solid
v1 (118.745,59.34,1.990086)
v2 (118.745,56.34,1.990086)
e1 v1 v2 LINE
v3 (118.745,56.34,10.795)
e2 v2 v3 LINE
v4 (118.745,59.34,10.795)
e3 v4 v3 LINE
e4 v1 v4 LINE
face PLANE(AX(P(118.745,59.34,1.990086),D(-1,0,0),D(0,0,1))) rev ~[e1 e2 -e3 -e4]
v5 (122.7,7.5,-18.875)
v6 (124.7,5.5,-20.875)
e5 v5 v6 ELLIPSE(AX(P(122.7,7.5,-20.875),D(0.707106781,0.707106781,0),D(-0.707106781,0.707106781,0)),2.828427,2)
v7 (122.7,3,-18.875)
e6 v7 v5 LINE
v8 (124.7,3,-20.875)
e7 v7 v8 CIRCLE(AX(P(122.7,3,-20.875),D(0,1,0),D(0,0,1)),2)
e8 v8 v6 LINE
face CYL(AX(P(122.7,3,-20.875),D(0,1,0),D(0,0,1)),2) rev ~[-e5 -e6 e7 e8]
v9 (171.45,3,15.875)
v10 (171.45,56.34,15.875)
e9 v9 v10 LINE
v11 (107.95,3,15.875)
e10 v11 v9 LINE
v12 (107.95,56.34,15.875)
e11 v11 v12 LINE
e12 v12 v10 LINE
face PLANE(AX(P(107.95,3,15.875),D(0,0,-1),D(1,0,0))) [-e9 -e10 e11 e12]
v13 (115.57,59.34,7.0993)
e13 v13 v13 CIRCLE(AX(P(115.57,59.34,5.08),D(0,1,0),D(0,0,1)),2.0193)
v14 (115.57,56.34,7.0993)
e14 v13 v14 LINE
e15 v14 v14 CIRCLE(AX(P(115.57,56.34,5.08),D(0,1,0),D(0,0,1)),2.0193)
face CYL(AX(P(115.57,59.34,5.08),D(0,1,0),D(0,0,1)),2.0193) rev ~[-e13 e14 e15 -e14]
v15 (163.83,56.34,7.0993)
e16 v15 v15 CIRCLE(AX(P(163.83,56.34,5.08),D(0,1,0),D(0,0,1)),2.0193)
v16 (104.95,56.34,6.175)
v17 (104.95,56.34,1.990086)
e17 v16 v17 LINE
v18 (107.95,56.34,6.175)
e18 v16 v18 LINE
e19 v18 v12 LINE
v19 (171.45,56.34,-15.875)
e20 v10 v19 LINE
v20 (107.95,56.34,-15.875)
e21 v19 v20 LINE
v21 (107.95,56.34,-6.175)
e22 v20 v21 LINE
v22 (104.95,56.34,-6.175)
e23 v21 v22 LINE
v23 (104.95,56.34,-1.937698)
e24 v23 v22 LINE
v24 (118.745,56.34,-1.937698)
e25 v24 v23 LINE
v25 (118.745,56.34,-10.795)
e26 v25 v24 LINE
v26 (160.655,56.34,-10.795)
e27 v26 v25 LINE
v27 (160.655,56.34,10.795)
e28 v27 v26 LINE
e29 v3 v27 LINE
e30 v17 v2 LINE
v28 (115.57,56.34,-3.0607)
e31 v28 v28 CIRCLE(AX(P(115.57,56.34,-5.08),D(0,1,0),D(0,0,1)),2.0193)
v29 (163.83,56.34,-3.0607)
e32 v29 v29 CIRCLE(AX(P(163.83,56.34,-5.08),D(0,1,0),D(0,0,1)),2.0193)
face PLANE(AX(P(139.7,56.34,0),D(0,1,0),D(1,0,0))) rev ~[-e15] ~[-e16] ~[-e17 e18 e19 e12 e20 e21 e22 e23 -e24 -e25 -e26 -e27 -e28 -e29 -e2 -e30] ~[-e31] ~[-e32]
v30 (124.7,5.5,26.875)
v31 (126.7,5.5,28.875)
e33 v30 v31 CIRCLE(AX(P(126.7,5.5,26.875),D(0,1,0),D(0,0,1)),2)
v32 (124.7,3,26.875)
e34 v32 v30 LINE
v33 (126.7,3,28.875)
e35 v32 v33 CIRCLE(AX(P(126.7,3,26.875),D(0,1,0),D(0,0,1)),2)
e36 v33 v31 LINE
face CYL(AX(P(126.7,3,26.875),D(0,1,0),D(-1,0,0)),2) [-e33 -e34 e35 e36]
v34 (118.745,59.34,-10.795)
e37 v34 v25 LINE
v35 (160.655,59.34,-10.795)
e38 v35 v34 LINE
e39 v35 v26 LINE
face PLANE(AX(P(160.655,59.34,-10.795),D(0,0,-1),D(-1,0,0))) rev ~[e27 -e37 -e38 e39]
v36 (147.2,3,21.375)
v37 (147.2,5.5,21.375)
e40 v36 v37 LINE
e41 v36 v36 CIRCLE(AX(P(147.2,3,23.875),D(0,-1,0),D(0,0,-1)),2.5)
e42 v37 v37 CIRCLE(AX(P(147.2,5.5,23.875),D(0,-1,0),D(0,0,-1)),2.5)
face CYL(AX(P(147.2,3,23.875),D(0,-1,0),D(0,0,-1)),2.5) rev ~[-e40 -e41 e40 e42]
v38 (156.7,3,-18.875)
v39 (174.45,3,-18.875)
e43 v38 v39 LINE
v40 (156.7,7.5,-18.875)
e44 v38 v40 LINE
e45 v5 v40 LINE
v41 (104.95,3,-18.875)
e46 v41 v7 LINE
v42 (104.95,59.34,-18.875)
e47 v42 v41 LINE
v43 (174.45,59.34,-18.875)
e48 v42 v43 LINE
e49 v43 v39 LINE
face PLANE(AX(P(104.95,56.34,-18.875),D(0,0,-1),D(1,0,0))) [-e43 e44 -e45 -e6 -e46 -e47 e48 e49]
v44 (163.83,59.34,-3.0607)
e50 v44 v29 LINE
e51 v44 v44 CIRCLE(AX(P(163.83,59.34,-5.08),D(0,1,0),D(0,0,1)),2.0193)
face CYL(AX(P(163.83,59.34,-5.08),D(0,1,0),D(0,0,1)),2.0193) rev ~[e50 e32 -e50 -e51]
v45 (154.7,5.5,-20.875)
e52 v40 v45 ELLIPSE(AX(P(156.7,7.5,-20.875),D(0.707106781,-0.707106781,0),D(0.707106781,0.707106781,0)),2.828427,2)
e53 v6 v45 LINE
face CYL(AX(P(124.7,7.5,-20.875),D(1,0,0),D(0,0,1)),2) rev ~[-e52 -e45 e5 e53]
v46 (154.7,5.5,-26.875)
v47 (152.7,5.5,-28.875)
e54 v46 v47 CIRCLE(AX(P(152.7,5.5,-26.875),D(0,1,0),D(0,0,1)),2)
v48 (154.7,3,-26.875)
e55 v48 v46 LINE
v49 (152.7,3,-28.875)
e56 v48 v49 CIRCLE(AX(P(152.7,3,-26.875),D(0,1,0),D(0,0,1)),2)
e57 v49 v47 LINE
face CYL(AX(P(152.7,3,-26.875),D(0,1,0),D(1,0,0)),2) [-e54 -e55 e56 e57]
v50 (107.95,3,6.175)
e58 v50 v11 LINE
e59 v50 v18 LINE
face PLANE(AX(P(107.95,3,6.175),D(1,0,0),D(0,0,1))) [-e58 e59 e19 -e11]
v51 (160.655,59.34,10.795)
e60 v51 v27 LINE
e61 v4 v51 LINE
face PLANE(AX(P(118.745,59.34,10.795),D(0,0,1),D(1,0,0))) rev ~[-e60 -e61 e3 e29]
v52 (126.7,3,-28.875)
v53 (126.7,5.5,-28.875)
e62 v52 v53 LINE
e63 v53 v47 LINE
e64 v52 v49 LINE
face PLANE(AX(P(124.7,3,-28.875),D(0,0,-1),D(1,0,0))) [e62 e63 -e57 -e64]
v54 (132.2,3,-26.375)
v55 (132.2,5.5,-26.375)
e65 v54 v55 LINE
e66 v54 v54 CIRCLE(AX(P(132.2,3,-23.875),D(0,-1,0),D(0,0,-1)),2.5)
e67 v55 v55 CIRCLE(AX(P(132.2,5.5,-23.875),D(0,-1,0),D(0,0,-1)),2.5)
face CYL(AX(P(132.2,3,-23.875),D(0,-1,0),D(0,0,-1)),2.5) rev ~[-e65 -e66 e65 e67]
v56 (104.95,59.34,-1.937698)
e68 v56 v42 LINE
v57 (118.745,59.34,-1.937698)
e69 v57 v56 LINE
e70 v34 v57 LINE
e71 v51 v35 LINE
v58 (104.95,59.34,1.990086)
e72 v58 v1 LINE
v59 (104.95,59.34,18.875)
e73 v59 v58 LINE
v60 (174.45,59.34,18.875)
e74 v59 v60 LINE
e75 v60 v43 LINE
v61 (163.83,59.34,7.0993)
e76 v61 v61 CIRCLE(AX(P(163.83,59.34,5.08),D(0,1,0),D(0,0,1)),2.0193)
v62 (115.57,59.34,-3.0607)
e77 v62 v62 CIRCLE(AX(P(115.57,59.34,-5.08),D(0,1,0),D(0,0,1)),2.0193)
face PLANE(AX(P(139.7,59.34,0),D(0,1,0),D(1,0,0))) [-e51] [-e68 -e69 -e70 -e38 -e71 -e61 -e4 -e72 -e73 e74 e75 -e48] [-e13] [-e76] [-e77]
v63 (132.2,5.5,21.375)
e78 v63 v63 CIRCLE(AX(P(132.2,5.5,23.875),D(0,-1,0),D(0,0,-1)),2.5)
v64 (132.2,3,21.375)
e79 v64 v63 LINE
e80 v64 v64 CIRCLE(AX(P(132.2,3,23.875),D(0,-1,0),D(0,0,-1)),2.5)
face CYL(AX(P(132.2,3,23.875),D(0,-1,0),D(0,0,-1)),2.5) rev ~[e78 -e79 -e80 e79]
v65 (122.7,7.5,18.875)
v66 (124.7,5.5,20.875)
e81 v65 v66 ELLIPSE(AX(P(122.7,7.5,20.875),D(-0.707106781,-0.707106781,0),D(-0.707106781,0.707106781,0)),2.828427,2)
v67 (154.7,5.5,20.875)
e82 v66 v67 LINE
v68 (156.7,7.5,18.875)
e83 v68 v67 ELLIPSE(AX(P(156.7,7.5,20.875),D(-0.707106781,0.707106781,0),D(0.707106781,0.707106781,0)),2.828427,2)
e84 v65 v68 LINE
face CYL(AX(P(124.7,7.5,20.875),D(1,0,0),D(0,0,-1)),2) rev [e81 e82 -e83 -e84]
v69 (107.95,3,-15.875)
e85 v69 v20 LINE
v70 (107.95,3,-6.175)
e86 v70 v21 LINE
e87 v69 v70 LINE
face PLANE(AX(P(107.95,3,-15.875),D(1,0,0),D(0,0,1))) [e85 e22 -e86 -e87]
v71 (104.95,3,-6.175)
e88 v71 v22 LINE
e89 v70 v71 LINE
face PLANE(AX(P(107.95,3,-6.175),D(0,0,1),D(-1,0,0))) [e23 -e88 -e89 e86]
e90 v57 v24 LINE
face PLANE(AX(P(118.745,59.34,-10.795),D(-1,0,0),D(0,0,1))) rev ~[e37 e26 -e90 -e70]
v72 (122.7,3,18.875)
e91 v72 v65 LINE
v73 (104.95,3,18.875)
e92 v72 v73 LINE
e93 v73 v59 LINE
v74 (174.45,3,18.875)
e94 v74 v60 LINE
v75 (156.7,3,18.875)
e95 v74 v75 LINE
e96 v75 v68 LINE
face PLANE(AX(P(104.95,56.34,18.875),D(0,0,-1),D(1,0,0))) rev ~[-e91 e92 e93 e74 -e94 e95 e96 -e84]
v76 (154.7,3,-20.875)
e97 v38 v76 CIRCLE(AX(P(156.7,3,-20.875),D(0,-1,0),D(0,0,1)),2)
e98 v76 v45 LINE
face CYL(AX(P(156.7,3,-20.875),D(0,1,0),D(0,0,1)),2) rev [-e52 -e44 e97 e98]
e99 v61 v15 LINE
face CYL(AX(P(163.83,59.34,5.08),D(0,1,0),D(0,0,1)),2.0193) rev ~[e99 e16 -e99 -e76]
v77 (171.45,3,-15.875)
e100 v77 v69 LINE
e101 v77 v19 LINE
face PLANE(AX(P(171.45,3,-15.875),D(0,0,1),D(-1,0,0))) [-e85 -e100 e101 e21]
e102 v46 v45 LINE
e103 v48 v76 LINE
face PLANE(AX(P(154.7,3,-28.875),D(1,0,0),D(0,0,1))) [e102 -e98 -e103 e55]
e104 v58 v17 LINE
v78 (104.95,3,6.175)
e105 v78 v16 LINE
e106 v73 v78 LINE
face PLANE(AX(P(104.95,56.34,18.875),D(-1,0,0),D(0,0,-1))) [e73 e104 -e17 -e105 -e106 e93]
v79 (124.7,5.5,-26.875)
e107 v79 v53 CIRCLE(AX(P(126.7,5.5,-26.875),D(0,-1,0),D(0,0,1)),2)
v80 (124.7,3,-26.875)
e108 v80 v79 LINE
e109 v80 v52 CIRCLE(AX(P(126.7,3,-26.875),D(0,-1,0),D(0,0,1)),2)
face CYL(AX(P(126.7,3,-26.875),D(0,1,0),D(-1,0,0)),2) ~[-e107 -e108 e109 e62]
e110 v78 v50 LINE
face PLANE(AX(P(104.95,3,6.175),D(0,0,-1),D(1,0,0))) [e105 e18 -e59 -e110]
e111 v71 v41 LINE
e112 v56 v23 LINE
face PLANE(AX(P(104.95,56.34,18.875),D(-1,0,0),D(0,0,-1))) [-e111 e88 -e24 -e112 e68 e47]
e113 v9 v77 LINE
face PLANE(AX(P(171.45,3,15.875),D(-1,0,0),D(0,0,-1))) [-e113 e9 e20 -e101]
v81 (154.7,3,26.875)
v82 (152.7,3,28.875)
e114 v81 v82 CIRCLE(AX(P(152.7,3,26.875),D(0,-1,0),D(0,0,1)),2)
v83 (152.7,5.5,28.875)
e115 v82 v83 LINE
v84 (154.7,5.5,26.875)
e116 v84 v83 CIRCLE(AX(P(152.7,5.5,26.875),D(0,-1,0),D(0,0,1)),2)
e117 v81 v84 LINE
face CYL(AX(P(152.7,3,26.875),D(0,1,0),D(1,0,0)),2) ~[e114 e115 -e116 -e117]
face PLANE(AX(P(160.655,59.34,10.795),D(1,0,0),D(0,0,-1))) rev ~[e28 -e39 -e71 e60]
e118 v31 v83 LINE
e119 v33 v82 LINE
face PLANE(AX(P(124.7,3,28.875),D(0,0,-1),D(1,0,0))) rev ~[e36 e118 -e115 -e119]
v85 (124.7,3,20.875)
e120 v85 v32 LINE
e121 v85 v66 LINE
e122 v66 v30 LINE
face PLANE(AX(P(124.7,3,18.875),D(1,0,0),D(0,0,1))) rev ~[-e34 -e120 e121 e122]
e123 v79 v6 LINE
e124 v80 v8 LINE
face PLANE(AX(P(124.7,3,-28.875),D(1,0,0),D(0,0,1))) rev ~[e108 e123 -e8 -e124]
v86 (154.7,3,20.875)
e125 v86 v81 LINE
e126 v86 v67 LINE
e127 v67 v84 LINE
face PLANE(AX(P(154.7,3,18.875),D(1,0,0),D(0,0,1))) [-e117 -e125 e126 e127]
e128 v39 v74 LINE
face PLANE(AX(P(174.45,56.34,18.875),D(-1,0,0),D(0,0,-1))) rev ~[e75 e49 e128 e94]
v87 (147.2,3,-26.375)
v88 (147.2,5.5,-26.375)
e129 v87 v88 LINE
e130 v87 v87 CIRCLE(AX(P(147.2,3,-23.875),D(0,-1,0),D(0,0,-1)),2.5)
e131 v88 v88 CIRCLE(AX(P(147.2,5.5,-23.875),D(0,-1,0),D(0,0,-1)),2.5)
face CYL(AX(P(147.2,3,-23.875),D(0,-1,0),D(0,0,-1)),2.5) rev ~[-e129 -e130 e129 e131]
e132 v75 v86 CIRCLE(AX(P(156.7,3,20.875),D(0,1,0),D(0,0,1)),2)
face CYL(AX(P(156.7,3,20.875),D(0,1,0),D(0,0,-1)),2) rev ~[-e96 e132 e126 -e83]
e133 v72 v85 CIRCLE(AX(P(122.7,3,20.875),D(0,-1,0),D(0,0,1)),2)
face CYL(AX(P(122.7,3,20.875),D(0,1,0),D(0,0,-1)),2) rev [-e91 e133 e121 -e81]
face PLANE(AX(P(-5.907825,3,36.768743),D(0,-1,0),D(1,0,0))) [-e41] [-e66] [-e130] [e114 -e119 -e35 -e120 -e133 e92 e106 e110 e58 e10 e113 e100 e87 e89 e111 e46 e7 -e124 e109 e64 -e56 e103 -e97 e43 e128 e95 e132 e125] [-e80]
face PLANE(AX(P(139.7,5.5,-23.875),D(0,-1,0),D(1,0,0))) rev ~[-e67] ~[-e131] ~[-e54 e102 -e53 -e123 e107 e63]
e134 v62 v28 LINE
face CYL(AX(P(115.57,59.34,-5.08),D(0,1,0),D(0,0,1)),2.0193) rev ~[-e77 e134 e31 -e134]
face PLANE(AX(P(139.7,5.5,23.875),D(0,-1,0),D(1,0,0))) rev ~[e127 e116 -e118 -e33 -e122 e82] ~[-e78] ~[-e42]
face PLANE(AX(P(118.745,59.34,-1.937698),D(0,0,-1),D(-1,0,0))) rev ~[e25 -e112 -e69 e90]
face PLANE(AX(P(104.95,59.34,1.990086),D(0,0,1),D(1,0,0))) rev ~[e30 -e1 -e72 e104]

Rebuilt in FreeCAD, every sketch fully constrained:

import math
import FreeCAD as App
import Part
import Sketcher
Q = App.Units.Quantity


def edges_at(feature, points):
    """Names of the edges that pass closest to the given points."""
    edges = feature.Shape.Edges
    near = lambda p: min(range(len(edges)), key=lambda i: edges[i].distToShape(Part.Vertex(*p))[0])
    return sorted({f"Edge{near(p) + 1}" for p in points})


def add_polygon(sketch, points):
    """Adds a closed chain of lines whose ends are joined by coincident constraints."""
    first, n = sketch.GeometryCount, len(points)
    for a, b in zip(points, points[1:] + points[:1]):
        sketch.addGeometry(Part.LineSegment(App.Vector(*a, 0), App.Vector(*b, 0)), False)
    for i in range(n):
        sketch.addConstraint(Sketcher.Constraint("Coincident", first + i, 2, first + (i + 1) % n, 1))

doc = App.newDocument("Part")
body = doc.addObject("PartDesign::Body", "Body")

sketch1 = body.newObject("Sketcher::SketchObject", "Sketch")
sketch1.AttachmentSupport = (doc.getObject("XZ_Plane"), [""])
sketch1.MapMode = "FlatFace"
sketch1.addGeometry([
    Part.LineSegment(App.Vector(-223.5, 111.1, 0), App.Vector(223.5, 111.1, 0)),
    Part.ArcOfCircle(Part.Circle(App.Vector(223.5, 106, 0), App.Vector(0, 0, 1), 5.1), math.radians(0), math.radians(90)),
    Part.LineSegment(App.Vector(228.6, 106, 0), App.Vector(228.6, -106, 0)),
    Part.ArcOfCircle(Part.Circle(App.Vector(223.5, -106, 0), App.Vector(0, 0, 1), 5.1), math.radians(-90), math.radians(0)),
    Part.LineSegment(App.Vector(223.5, -111.1, 0), App.Vector(-223.5, -111.1, 0)),
    Part.ArcOfCircle(Part.Circle(App.Vector(-223.5, -106, 0), App.Vector(0, 0, 1), 5.1), math.radians(-180), math.radians(-90)),
    Part.LineSegment(App.Vector(-228.6, -106, 0), App.Vector(-228.6, 106, 0)),
    Part.ArcOfCircle(Part.Circle(App.Vector(-223.5, 106, 0), App.Vector(0, 0, 1), 5.1), math.radians(90), math.radians(180)),
    Part.Circle(App.Vector(-142.2, 36.5, 0), App.Vector(0, 0, 1), 2.5),
    Part.Circle(App.Vector(127, 36.5, 0), App.Vector(0, 0, 1), 2.5),
    Part.Circle(App.Vector(-142.2, -36.5, 0), App.Vector(0, 0, 1), 2.5),
    Part.Circle(App.Vector(209.6, 0, 0), App.Vector(0, 0, 1), 6.3),
    Part.Circle(App.Vector(127, -36.5, 0), App.Vector(0, 0, 1), 2.5),
], False)
sketch1.addConstraint([
    Sketcher.Constraint("Tangent", 0, 2, 1, 2),
    Sketcher.Constraint("Tangent", 1, 1, 2, 1),
    Sketcher.Constraint("Tangent", 2, 2, 3, 2),
    Sketcher.Constraint("Tangent", 3, 1, 4, 1),
    Sketcher.Constraint("Tangent", 4, 2, 5, 2),
    Sketcher.Constraint("Tangent", 5, 1, 6, 1),
    Sketcher.Constraint("Tangent", 6, 2, 7, 2),
    Sketcher.Constraint("Tangent", 7, 1, 0, 1),
    Sketcher.Constraint("Horizontal", 0),
    Sketcher.Constraint("Vertical", 2),
    Sketcher.Constraint("Horizontal", 4),
    Sketcher.Constraint("Vertical", 6),
    Sketcher.Constraint("Equal", 1, 3),
    Sketcher.Constraint("Equal", 3, 5),
    Sketcher.Constraint("Equal", 5, 7),
    Sketcher.Constraint("Equal", 8, 9),
    Sketcher.Constraint("Equal", 9, 10),
    Sketcher.Constraint("Equal", 10, 12),
    Sketcher.Constraint("Symmetric", 1, 3, 5, 3, -1, 1),
    Sketcher.Constraint("Symmetric", 8, 3, 10, 3, -1),
    Sketcher.Constraint("Symmetric", 9, 3, 12, 3, -1),
    Sketcher.Constraint("PointOnObject", 11, 3, -1),
    Sketcher.Constraint("Horizontal", 8, 3, 9, 3),
    Sketcher.Constraint("Diameter", 8, Q("0.2 in")),
    Sketcher.Constraint("Diameter", 11, Q("0.5 in")),
    Sketcher.Constraint("Radius", 1, Q("0.2 in")),
    Sketcher.Constraint("DistanceX", 0, 1, 0, 2, Q("17.6 in")),
    Sketcher.Constraint("DistanceX", -1, 1, 9, 3, Q("5 in")),
    Sketcher.Constraint("DistanceY", 2, 2, 2, 1, Q("8.35 in")),
    Sketcher.Constraint("DistanceX", 8, 3, -1, 1, Q("5.6 in")),
    Sketcher.Constraint("DistanceX", -1, 1, 11, 3, Q("8.25 in")),
    Sketcher.Constraint("DistanceY", -1, 1, 8, 3, Q("1.4375 in")),
])
pad1 = body.newObject("PartDesign::Pad", "Pad")
pad1.Profile = sketch1
pad1.Length = 3
pad1.Reversed = True

sketch2 = body.newObject("Sketcher::SketchObject", "Sketch001")
sketch2.AttachmentSupport = (doc.getObject("XZ_Plane"), [""])
sketch2.MapMode = "FlatFace"
sketch2.AttachmentOffset = App.Placement(App.Vector(0, 0, -3), App.Rotation())
add_polygon(sketch2, [(174.4, -18.9), (105, -18.9), (105, -6.2), (108, -6.2), (108, -15.9), (171.4, -15.9), (171.4, 15.9), (108, 15.9), (108, 6.2), (105, 6.2), (105, 18.9), (174.4, 18.9)])
sketch2.addConstraint([
    Sketcher.Constraint("Horizontal", 0),
    Sketcher.Constraint("Vertical", 1),
    Sketcher.Constraint("Horizontal", 2),
    Sketcher.Constraint("Vertical", 3),
    Sketcher.Constraint("Horizontal", 4),
    Sketcher.Constraint("Vertical", 5),
    Sketcher.Constraint("Horizontal", 6),
    Sketcher.Constraint("Vertical", 7),
    Sketcher.Constraint("Horizontal", 8),
    Sketcher.Constraint("Vertical", 9),
    Sketcher.Constraint("Horizontal", 10),
    Sketcher.Constraint("Vertical", 11),
    Sketcher.Constraint("Symmetric", 3, 2, 6, 2, -1),
    Sketcher.Constraint("Symmetric", 1, 2, 8, 2, -1),
    Sketcher.Constraint("Equal", 1, 9),
    Sketcher.Constraint("DistanceX", 4, 1, 4, 2, Q("2.5 in")),
    Sketcher.Constraint("DistanceY", 1, 1, 1, 2, Q("0.5 in")),
    Sketcher.Constraint("DistanceY", 5, 1, 5, 2, Q("1.25 in")),
    Sketcher.Constraint("DistanceX", -1, 1, 2, 2, Q("4.25 in")),
    Sketcher.Constraint("DistanceX", 0, 2, 0, 1, 69.5),
    Sketcher.Constraint("DistanceX", 2, 1, 2, 2, 3.0),
    Sketcher.Constraint("DistanceY", 3, 2, 3, 1, 9.7),
])
pad2 = body.newObject("PartDesign::Pad", "Pad001")
pad2.Profile = sketch2
pad2.Length = Q("2.1 in")
pad2.Reversed = True

sketch3 = body.newObject("Sketcher::SketchObject", "Sketch002")
sketch3.AttachmentSupport = (doc.getObject("XZ_Plane"), [""])
sketch3.MapMode = "FlatFace"
sketch3.AttachmentOffset = App.Placement(App.Vector(0, 0, -56.34), App.Rotation())
add_polygon(sketch3, [(105, -19), (105, 19), (174, 19), (174, -19)])
sketch3.addConstraint([
    Sketcher.Constraint("Vertical", 0),
    Sketcher.Constraint("Horizontal", 1),
    Sketcher.Constraint("Vertical", 2),
    Sketcher.Constraint("Horizontal", 3),
    Sketcher.Constraint("DistanceX", 1, 1, 1, 2, 69.5),
    Sketcher.Constraint("DistanceY", 0, 1, 0, 2, 37.75),
    Sketcher.Constraint("DistanceX", -1, 1, 0, 2, 104.95),
    Sketcher.Constraint("DistanceY", -1, 1, 0, 2, 18.875),
])
pad3 = body.newObject("PartDesign::Pad", "Pad002")
pad3.Profile = sketch3
pad3.Length = 3
pad3.Reversed = True

sketch4 = body.newObject("Sketcher::SketchObject", "Sketch003")
sketch4.AttachmentSupport = (doc.getObject("XZ_Plane"), [""])
sketch4.MapMode = "FlatFace"
sketch4.AttachmentOffset = App.Placement(App.Vector(0, 0, -59.34), App.Rotation())
sketch4.addGeometry(Part.Circle(App.Vector(163.8, -5.1, 0), App.Vector(0, 0, 1), 2), False)
sketch4.addGeometry(Part.Circle(App.Vector(163.8, 5.1, 0), App.Vector(0, 0, 1), 2), False)
sketch4.addGeometry(Part.Circle(App.Vector(115.6, -5.1, 0), App.Vector(0, 0, 1), 2), False)
sketch4.addGeometry(Part.Circle(App.Vector(115.6, 5.1, 0), App.Vector(0, 0, 1), 2), False)
add_polygon(sketch4, [(118.7, -1.9), (105, -1.9), (95.8, 0), (105, 2), (118.7, 2), (118.7, 10.8), (160.7, 10.8), (160.7, -10.8), (118.7, -10.8)])
sketch4.addConstraint([
    Sketcher.Constraint("Horizontal", 4),
    Sketcher.Constraint("Horizontal", 7),
    Sketcher.Constraint("Vertical", 8),
    Sketcher.Constraint("Horizontal", 9),
    Sketcher.Constraint("Vertical", 10),
    Sketcher.Constraint("Horizontal", 11),
    Sketcher.Constraint("Vertical", 12),
    Sketcher.Constraint("Equal", 0, 1),
    Sketcher.Constraint("Equal", 1, 2),
    Sketcher.Constraint("Equal", 2, 3),
    Sketcher.Constraint("Symmetric", 0, 3, 1, 3, -1),
    Sketcher.Constraint("Symmetric", 2, 3, 3, 3, -1),
    Sketcher.Constraint("Symmetric", 8, 2, 11, 2, -1),
    Sketcher.Constraint("PointOnObject", 5, 2, -1),
    Sketcher.Constraint("Horizontal", 0, 3, 2, 3),
    Sketcher.Constraint("Vertical", 4, 2, 6, 2),
    Sketcher.Constraint("Diameter", 0, Q("0.159 in")),
    Sketcher.Constraint("DistanceX", 9, 1, 9, 2, Q("1.65 in")),
    Sketcher.Constraint("DistanceY", 10, 2, 10, 1, Q("0.85 in")),
    Sketcher.Constraint("DistanceY", 0, 3, -1, 1, Q("0.2 in")),
    Sketcher.Constraint("DistanceX", 2, 3, 0, 3, Q("1.9 in")),
    Sketcher.Constraint("DistanceX", -1, 1, 0, 3, Q("6.45 in")),
    Sketcher.Constraint("DistanceX", -1, 1, 7, 2, Q("4.675 in")),
    Sketcher.Constraint("DistanceX", 4, 2, 4, 1, 13.795),
    Sketcher.Constraint("DistanceY", 12, 1, 12, 2, 8.857302),
    Sketcher.Constraint("Distance", 5, 9.312209),
    Sketcher.Constraint("Distance", 6, 9.323251),
])
pocket1 = body.newObject("PartDesign::Pocket", "Pocket")
pocket1.Profile = sketch4
pocket1.Length = 56.34
pocket1.Reversed = True

sketch5 = body.newObject("Sketcher::SketchObject", "Sketch004")
sketch5.AttachmentSupport = (doc.getObject("XZ_Plane"), [""])
sketch5.MapMode = "FlatFace"
add_polygon(sketch5, [(-362, 299), (-362, -225), (350, -225), (350, 299)])
sketch5.addConstraint([
    Sketcher.Constraint("Vertical", 0),
    Sketcher.Constraint("Horizontal", 1),
    Sketcher.Constraint("Vertical", 2),
    Sketcher.Constraint("Horizontal", 3),
    Sketcher.Constraint("DistanceX", 1, 1, 1, 2, 712.395529),
    Sketcher.Constraint("DistanceY", 0, 2, 0, 1, 524.196018),
    Sketcher.Constraint("DistanceX", 0, 2, -1, 1, 362.105589),
    Sketcher.Constraint("DistanceY", -1, 1, 2, 2, 298.866752),
])
pocket2 = body.newObject("PartDesign::Pocket", "Pocket001")
pocket2.Profile = sketch5
pocket2.Length = 3

sketch6 = body.newObject("Sketcher::SketchObject", "Sketch005")
sketch6.AttachmentSupport = (doc.getObject("XZ_Plane"), [""])
sketch6.MapMode = "FlatFace"
sketch6.AttachmentOffset = App.Placement(App.Vector(0, 0, -3), App.Rotation())
add_polygon(sketch6, [(124.7, 28.9), (124.7, 18.9), (154.7, 18.9), (154.7, 28.9)])
sketch6.addGeometry(Part.Circle(App.Vector(132.2, 23.9, 0), App.Vector(0, 0, 1), 2.5), False)
sketch6.addGeometry(Part.Circle(App.Vector(147.2, 23.9, 0), App.Vector(0, 0, 1), 2.5), False)
add_polygon(sketch6, [(124.7, -18.9), (124.7, -28.9), (154.7, -28.9), (154.7, -18.9)])
sketch6.addGeometry(Part.Circle(App.Vector(132.2, -23.9, 0), App.Vector(0, 0, 1), 2.5), False)
sketch6.addGeometry(Part.Circle(App.Vector(147.2, -23.9, 0), App.Vector(0, 0, 1), 2.5), False)
sketch6.addConstraint([
    Sketcher.Constraint("Vertical", 0),
    Sketcher.Constraint("Horizontal", 1),
    Sketcher.Constraint("Vertical", 2),
    Sketcher.Constraint("Horizontal", 3),
    Sketcher.Constraint("Vertical", 6),
    Sketcher.Constraint("Horizontal", 7),
    Sketcher.Constraint("Vertical", 8),
    Sketcher.Constraint("Horizontal", 9),
    Sketcher.Constraint("Equal", 4, 5),
    Sketcher.Constraint("Equal", 5, 10),
    Sketcher.Constraint("Equal", 10, 11),
    Sketcher.Constraint("Symmetric", 4, 3, 10, 3, -1),
    Sketcher.Constraint("Symmetric", 5, 3, 11, 3, -1),
    Sketcher.Constraint("Symmetric", 3, 2, 6, 2, -1),
    Sketcher.Constraint("Symmetric", 1, 2, 8, 2, -1),
    Sketcher.Constraint("Horizontal", 4, 3, 5, 3),
    Sketcher.Constraint("Diameter", 4, 5.0),
    Sketcher.Constraint("DistanceX", 1, 1, 1, 2, 30.0),
    Sketcher.Constraint("DistanceY", 0, 2, 0, 1, 10.0),
    Sketcher.Constraint("DistanceX", -1, 1, 4, 3, 132.2),
    Sketcher.Constraint("DistanceY", -1, 1, 4, 3, 23.875),
    Sketcher.Constraint("DistanceX", -1, 1, 5, 3, 147.2),
    Sketcher.Constraint("DistanceX", -1, 1, 0, 2, 124.7),
    Sketcher.Constraint("DistanceY", -1, 1, 0, 2, 18.875),
])
pad4 = body.newObject("PartDesign::Pad", "Pad003")
pad4.Profile = sketch6
pad4.Length = 2.5
pad4.Reversed = True
doc.recompute()

fillet = body.newObject("PartDesign::Fillet", "Fillet")
fillet.Base = (pad4, edges_at(pad4, [
    (124.7, 4.25, 28.875),
    (154.7, 4.25, 28.875),
    (154.7, 4.25, 18.875),
    (124.7, 4.25, 18.875),
    (139.7, 5.5, 18.875),
    (124.7, 4.25, -18.875),
    (154.7, 4.25, -18.875),
    (154.7, 4.25, -28.875),
    (124.7, 4.25, -28.875),
    (139.7, 5.5, -18.875),
]))
fillet.Radius = 2

doc.recompute()
